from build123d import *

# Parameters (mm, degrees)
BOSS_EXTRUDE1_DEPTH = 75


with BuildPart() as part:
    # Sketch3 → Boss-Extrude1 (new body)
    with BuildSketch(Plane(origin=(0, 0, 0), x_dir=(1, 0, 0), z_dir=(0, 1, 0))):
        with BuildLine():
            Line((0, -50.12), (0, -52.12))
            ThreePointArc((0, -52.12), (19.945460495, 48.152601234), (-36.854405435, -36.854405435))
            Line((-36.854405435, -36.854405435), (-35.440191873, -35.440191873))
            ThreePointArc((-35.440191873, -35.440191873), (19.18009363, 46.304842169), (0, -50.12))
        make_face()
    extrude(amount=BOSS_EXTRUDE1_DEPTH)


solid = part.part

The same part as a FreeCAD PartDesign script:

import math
import FreeCAD as App
import Part
import Sketcher
Q = App.Units.Quantity

doc = App.newDocument("Part")
body = doc.addObject("PartDesign::Body", "Body")

# Sketch on XZ plane
sketch1 = body.newObject("Sketcher::SketchObject", "Sketch")
sketch1.AttachmentSupport = (doc.getObject("XZ_Plane"), [""])
sketch1.MapMode = "FlatFace"
sketch1.addGeometry(Part.LineSegment(App.Vector(0, 50.12, 0), App.Vector(0, 52.12, 0)), False)
sketch1.addGeometry(Part.ArcOfCircle(Part.Circle(App.Vector(0, 0, 0), App.Vector(0, 0, 1), 52.12), math.radians(135), math.radians(450)), False)
sketch1.addGeometry(Part.LineSegment(App.Vector(-36.854405, 36.854405, 0), App.Vector(-35.440192, 35.440192, 0)), False)
sketch1.addGeometry(Part.ArcOfCircle(Part.Circle(App.Vector(0, 0, 0), App.Vector(0, 0, 1), 50.12), math.radians(135), math.radians(450)), False)
sketch1.addConstraint(Sketcher.Constraint("Coincident", 0, 2, 1, 2))
sketch1.addConstraint(Sketcher.Constraint("Coincident", 1, 1, 2, 1))
sketch1.addConstraint(Sketcher.Constraint("Coincident", 2, 2, 3, 1))
sketch1.addConstraint(Sketcher.Constraint("Coincident", 3, 2, 0, 1))
sketch1.addConstraint(Sketcher.Constraint("Vertical", 0))
sketch1.addConstraint(Sketcher.Constraint("Coincident", 1, 3, -1, 1))
sketch1.addConstraint(Sketcher.Constraint("Coincident", 3, 3, -1, 1))
sketch1.addConstraint(Sketcher.Constraint("PointOnObject", 0, 2, -2))
sketch1.addConstraint(Sketcher.Constraint("DistanceY", 0, 1, 0, 2, 2.0))
sketch1.addConstraint(Sketcher.Constraint("Angle", 2, Q("-45 deg")))
sketch1.addConstraint(Sketcher.Constraint("Radius", 1, 52.12))
sketch1.addConstraint(Sketcher.Constraint("DistanceX", 2, 2, -1, 1, 35.440192))
pad1 = body.newObject("PartDesign::Pad", "Pad")
pad1.Profile = sketch1
pad1.Length = 75
pad1.Reversed = True

doc.recompute()
